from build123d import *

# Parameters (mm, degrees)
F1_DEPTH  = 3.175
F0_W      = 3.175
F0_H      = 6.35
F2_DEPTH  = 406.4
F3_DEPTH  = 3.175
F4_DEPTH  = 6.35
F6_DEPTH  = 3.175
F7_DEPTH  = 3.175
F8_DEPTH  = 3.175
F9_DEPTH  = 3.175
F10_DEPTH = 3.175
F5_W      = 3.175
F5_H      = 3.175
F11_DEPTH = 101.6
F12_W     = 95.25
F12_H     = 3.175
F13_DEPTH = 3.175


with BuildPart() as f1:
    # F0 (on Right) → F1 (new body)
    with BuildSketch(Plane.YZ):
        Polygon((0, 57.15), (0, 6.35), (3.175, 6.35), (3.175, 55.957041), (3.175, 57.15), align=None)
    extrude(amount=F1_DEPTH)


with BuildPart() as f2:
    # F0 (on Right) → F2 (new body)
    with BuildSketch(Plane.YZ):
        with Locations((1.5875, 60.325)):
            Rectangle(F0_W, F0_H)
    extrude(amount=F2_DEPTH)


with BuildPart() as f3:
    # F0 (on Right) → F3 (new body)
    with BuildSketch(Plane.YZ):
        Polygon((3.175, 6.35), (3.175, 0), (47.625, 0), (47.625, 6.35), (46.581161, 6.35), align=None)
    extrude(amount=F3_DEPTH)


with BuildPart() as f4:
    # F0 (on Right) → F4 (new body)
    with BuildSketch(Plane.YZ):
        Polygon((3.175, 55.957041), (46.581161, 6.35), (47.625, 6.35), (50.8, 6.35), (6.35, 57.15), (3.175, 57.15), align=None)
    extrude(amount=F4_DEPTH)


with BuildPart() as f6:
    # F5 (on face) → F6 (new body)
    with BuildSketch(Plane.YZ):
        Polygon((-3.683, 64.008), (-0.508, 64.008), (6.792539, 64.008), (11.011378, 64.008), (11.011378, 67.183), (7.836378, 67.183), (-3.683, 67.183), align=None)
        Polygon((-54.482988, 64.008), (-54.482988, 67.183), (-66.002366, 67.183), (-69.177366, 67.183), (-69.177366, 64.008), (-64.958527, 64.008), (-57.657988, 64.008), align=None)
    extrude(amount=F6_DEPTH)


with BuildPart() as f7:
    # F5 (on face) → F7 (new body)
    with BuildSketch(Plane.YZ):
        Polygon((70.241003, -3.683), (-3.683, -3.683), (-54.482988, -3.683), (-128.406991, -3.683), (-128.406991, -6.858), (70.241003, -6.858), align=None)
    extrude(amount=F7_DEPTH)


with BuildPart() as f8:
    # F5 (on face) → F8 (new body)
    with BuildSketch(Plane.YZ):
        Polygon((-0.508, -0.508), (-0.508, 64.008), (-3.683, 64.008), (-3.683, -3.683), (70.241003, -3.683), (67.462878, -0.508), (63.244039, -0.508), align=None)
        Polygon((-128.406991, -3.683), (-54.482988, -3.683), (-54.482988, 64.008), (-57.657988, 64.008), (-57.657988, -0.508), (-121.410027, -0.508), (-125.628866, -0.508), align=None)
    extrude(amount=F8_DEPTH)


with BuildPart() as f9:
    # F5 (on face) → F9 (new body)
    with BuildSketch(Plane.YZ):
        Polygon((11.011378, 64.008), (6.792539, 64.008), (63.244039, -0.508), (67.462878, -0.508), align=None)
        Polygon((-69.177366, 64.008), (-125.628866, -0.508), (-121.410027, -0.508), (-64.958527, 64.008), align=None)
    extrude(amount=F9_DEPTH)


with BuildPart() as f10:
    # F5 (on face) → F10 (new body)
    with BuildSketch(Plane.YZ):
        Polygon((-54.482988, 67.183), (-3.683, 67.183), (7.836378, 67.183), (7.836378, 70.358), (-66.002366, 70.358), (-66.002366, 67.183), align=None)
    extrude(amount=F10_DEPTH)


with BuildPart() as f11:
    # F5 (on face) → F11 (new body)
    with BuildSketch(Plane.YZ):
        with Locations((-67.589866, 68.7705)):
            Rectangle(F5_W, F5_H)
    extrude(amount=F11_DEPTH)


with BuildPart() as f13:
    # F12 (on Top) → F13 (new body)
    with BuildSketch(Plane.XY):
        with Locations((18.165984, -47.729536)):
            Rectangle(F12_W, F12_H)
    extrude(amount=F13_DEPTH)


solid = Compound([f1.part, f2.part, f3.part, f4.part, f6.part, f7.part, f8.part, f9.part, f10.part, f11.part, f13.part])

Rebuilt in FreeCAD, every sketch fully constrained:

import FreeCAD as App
import Part
import Sketcher
from FreeCAD import Vector
Q = App.Units.Quantity

doc = App.newDocument("Part")
body = doc.addObject("PartDesign::Body", "Body")

sketch1 = body.newObject("Sketcher::SketchObject", "Sketch")
sketch1.AttachmentSupport = (doc.getObject("YZ_Plane"), [""])
sketch1.MapMode = "FlatFace"
sketch1.addGeometry([
    Part.LineSegment(Vector(0, 57.1, 0), Vector(0, 6.3, 0)),
    Part.LineSegment(Vector(0, 6.3, 0), Vector(3.2, 6.3, 0)),
    Part.LineSegment(Vector(3.2, 6.3, 0), Vector(3.2, 57.1, 0)),
    Part.LineSegment(Vector(3.2, 57.1, 0), Vector(0, 57.1, 0)),
], False)
sketch1.addConstraint([
    Sketcher.Constraint("Coincident", 0, 2, 1, 1),
    Sketcher.Constraint("Coincident", 1, 2, 2, 1),
    Sketcher.Constraint("Coincident", 2, 2, 3, 1),
    Sketcher.Constraint("Coincident", 3, 2, 0, 1),
    Sketcher.Constraint("Vertical", 0),
    Sketcher.Constraint("Horizontal", 1),
    Sketcher.Constraint("Vertical", 2),
    Sketcher.Constraint("Horizontal", 3),
    Sketcher.Constraint("PointOnObject", 0, 2, -2),
    Sketcher.Constraint("DistanceY", 0, 2, 0, 1, Q("2 in")),
    Sketcher.Constraint("DistanceX", 1, 1, 1, 2, Q("0.125 in")),
    Sketcher.Constraint("DistanceY", -1, 1, 0, 2, Q("0.25 in")),
])
pad1 = body.newObject("PartDesign::Pad", "Pad")
pad1.Profile = sketch1
pad1.Length = Q("0.125 in")
body2 = doc.addObject("PartDesign::Body", "Body001")

sketch2 = body2.newObject("Sketcher::SketchObject", "Sketch001")
sketch2.AttachmentSupport = (doc.getObject("YZ_Plane001"), [""])
sketch2.MapMode = "FlatFace"
sketch2.addGeometry([
    Part.LineSegment(Vector(0, 63.5, 0), Vector(0, 57.1, 0)),
    Part.LineSegment(Vector(0, 57.1, 0), Vector(3.2, 57.1, 0)),
    Part.LineSegment(Vector(3.2, 57.1, 0), Vector(3.2, 63.5, 0)),
    Part.LineSegment(Vector(3.2, 63.5, 0), Vector(0, 63.5, 0)),
], False)
sketch2.addConstraint([
    Sketcher.Constraint("Coincident", 0, 2, 1, 1),
    Sketcher.Constraint("Coincident", 1, 2, 2, 1),
    Sketcher.Constraint("Coincident", 2, 2, 3, 1),
    Sketcher.Constraint("Coincident", 3, 2, 0, 1),
    Sketcher.Constraint("Vertical", 0),
    Sketcher.Constraint("Horizontal", 1),
    Sketcher.Constraint("Vertical", 2),
    Sketcher.Constraint("Horizontal", 3),
    Sketcher.Constraint("PointOnObject", 0, 2, -2),
    Sketcher.Constraint("DistanceY", 0, 2, 0, 1, Q("0.25 in")),
    Sketcher.Constraint("DistanceY", -1, 1, 2, 2, Q("2.5 in")),
    Sketcher.Constraint("DistanceX", 1, 1, 1, 2, Q("0.125 in")),
])
pad2 = body2.newObject("PartDesign::Pad", "Pad001")
pad2.Profile = sketch2
pad2.Length = Q("16 in")
body3 = doc.addObject("PartDesign::Body", "Body002")

sketch3 = body3.newObject("Sketcher::SketchObject", "Sketch002")
sketch3.AttachmentSupport = (doc.getObject("YZ_Plane002"), [""])
sketch3.MapMode = "FlatFace"
sketch3.addGeometry([
    Part.LineSegment(Vector(3, 6, 0), Vector(3, 0, 0)),
    Part.LineSegment(Vector(3, 0, 0), Vector(48, 0, 0)),
    Part.LineSegment(Vector(48, 0, 0), Vector(48, 6, 0)),
    Part.LineSegment(Vector(48, 6, 0), Vector(3, 6, 0)),
], False)
sketch3.addConstraint([
    Sketcher.Constraint("Coincident", 0, 2, 1, 1),
    Sketcher.Constraint("Coincident", 1, 2, 2, 1),
    Sketcher.Constraint("Coincident", 2, 2, 3, 1),
    Sketcher.Constraint("Coincident", 3, 2, 0, 1),
    Sketcher.Constraint("Vertical", 0),
    Sketcher.Constraint("Horizontal", 1),
    Sketcher.Constraint("Vertical", 2),
    Sketcher.Constraint("Horizontal", 3),
    Sketcher.Constraint("PointOnObject", 0, 2, -1),
    Sketcher.Constraint("DistanceX", 1, 1, 1, 2, Q("1.75 in")),
    Sketcher.Constraint("DistanceY", 0, 2, 0, 1, Q("0.25 in")),
    Sketcher.Constraint("DistanceX", -1, 1, 0, 2, Q("0.125 in")),
])
pad3 = body3.newObject("PartDesign::Pad", "Pad002")
pad3.Profile = sketch3
pad3.Length = Q("0.125 in")
body4 = doc.addObject("PartDesign::Body", "Body003")

sketch4 = body4.newObject("Sketcher::SketchObject", "Sketch003")
sketch4.AttachmentSupport = (doc.getObject("YZ_Plane003"), [""])
sketch4.MapMode = "FlatFace"
sketch4.addGeometry([
    Part.LineSegment(Vector(3.2, 56, 0), Vector(46.6, 6.3, 0)),
    Part.LineSegment(Vector(46.6, 6.3, 0), Vector(50.8, 6.3, 0)),
    Part.LineSegment(Vector(50.8, 6.3, 0), Vector(6.3, 57.1, 0)),
    Part.LineSegment(Vector(6.3, 57.1, 0), Vector(3.2, 57.1, 0)),
    Part.LineSegment(Vector(3.2, 57.1, 0), Vector(3.2, 56, 0)),
], False)
sketch4.addConstraint([
    Sketcher.Constraint("Coincident", 0, 2, 1, 1),
    Sketcher.Constraint("Coincident", 1, 2, 2, 1),
    Sketcher.Constraint("Coincident", 2, 2, 3, 1),
    Sketcher.Constraint("Coincident", 3, 2, 4, 1),
    Sketcher.Constraint("Coincident", 4, 2, 0, 1),
    Sketcher.Constraint("Horizontal", 1),
    Sketcher.Constraint("Horizontal", 3),
    Sketcher.Constraint("Vertical", 4),
    Sketcher.Constraint("Parallel", 0, 2),
    Sketcher.Constraint("DistanceX", -1, 1, 1, 2, Q("2 in")),
    Sketcher.Constraint("DistanceY", 0, 2, 2, 2, Q("2 in")),
    Sketcher.Constraint("DistanceX", 3, 2, 3, 1, Q("0.125 in")),
    Sketcher.Constraint("DistanceY", -1, 1, 0, 2, Q("0.25 in")),
    Sketcher.Constraint("DistanceX", -1, 1, 2, 2, Q("0.25 in")),
    Sketcher.Constraint("DistanceX", 1, 1, 1, 2, Q("4.218839 mm")),
])
pad4 = body4.newObject("PartDesign::Pad", "Pad003")
pad4.Profile = sketch4
pad4.Length = Q("0.25 in")
body5 = doc.addObject("PartDesign::Body", "Body004")
body5.AllowCompound = True

sketch5 = body5.newObject("Sketcher::SketchObject", "Sketch004")
sketch5.AttachmentSupport = (doc.getObject("YZ_Plane004"), [""])
sketch5.MapMode = "FlatFace"
sketch5.addGeometry([
    Part.LineSegment(Vector(-3.7, 64, 0), Vector(11, 64, 0)),
    Part.LineSegment(Vector(11, 64, 0), Vector(11, 67.2, 0)),
    Part.LineSegment(Vector(11, 67.2, 0), Vector(-3.7, 67.2, 0)),
    Part.LineSegment(Vector(-3.7, 67.2, 0), Vector(-3.7, 64, 0)),
    Part.LineSegment(Vector(-54.5, 64, 0), Vector(-54.5, 67.2, 0)),
    Part.LineSegment(Vector(-54.5, 67.2, 0), Vector(-69.2, 67.2, 0)),
    Part.LineSegment(Vector(-69.2, 67.2, 0), Vector(-69.2, 64, 0)),
    Part.LineSegment(Vector(-69.2, 64, 0), Vector(-54.5, 64, 0)),
], False)
sketch5.addConstraint([
    Sketcher.Constraint("Coincident", 0, 2, 1, 1),
    Sketcher.Constraint("Coincident", 1, 2, 2, 1),
    Sketcher.Constraint("Coincident", 2, 2, 3, 1),
    Sketcher.Constraint("Coincident", 3, 2, 0, 1),
    Sketcher.Constraint("Coincident", 4, 2, 5, 1),
    Sketcher.Constraint("Coincident", 5, 2, 6, 1),
    Sketcher.Constraint("Coincident", 6, 2, 7, 1),
    Sketcher.Constraint("Coincident", 7, 2, 4, 1),
    Sketcher.Constraint("Horizontal", 0),
    Sketcher.Constraint("Vertical", 1),
    Sketcher.Constraint("Horizontal", 2),
    Sketcher.Constraint("Vertical", 3),
    Sketcher.Constraint("Vertical", 4),
    Sketcher.Constraint("Horizontal", 5),
    Sketcher.Constraint("Vertical", 6),
    Sketcher.Constraint("Horizontal", 7),
    Sketcher.Constraint("Horizontal", 2, 2, 4, 2),
    Sketcher.Constraint("Horizontal", 3, 2, 6, 2),
    Sketcher.Constraint("Equal", 2, 5),
    Sketcher.Constraint("DistanceY", 1, 1, 1, 2, Q("0.125 in")),
    Sketcher.Constraint("DistanceY", -1, 1, 0, 2, Q("2.52 in")),
    Sketcher.Constraint("DistanceX", 2, 2, -1, 1, Q("0.145 in")),
    Sketcher.Constraint("DistanceX", 5, 2, 5, 1, Q("14.694378 mm")),
    Sketcher.Constraint("DistanceX", 4, 2, -1, 1, Q("54.482988 mm")),
])
pad5 = body5.newObject("PartDesign::Pad", "Pad004")
pad5.Profile = sketch5
pad5.Length = Q("0.125 in")
body6 = doc.addObject("PartDesign::Body", "Body005")

sketch6 = body6.newObject("Sketcher::SketchObject", "Sketch005")
sketch6.AttachmentSupport = (doc.getObject("YZ_Plane005"), [""])
sketch6.MapMode = "FlatFace"
sketch6.addGeometry([
    Part.LineSegment(Vector(70.2, -3.7, 0), Vector(-128.4, -3.7, 0)),
    Part.LineSegment(Vector(-128.4, -3.7, 0), Vector(-128.4, -6.9, 0)),
    Part.LineSegment(Vector(-128.4, -6.9, 0), Vector(70.2, -6.9, 0)),
    Part.LineSegment(Vector(70.2, -6.9, 0), Vector(70.2, -3.7, 0)),
], False)
sketch6.addConstraint([
    Sketcher.Constraint("Coincident", 0, 2, 1, 1),
    Sketcher.Constraint("Coincident", 1, 2, 2, 1),
    Sketcher.Constraint("Coincident", 2, 2, 3, 1),
    Sketcher.Constraint("Coincident", 3, 2, 0, 1),
    Sketcher.Constraint("Horizontal", 0),
    Sketcher.Constraint("Vertical", 1),
    Sketcher.Constraint("Horizontal", 2),
    Sketcher.Constraint("Vertical", 3),
    Sketcher.Constraint("DistanceY", 1, 2, 1, 1, Q("0.125 in")),
    Sketcher.Constraint("DistanceY", 1, 2, -1, 1, Q("0.27 in")),
    Sketcher.Constraint("DistanceX", 0, 2, 0, 1, Q("198.647994 mm")),
    Sketcher.Constraint("DistanceX", 0, 2, -1, 1, Q("128.406991 mm")),
])
pad6 = body6.newObject("PartDesign::Pad", "Pad005")
pad6.Profile = sketch6
pad6.Length = Q("0.125 in")
body7 = doc.addObject("PartDesign::Body", "Body006")
body7.AllowCompound = True

sketch7 = body7.newObject("Sketcher::SketchObject", "Sketch006")
sketch7.AttachmentSupport = (doc.getObject("YZ_Plane006"), [""])
sketch7.MapMode = "FlatFace"
sketch7.addGeometry([
    Part.LineSegment(Vector(-0.5, -0.5, 0), Vector(-0.5, 64, 0)),
    Part.LineSegment(Vector(-0.5, 64, 0), Vector(-3.7, 64, 0)),
    Part.LineSegment(Vector(-3.7, 64, 0), Vector(-3.7, -3.7, 0)),
    Part.LineSegment(Vector(-3.7, -3.7, 0), Vector(70.2, -3.7, 0)),
    Part.LineSegment(Vector(70.2, -3.7, 0), Vector(67.5, -0.5, 0)),
    Part.LineSegment(Vector(67.5, -0.5, 0), Vector(-0.5, -0.5, 0)),
    Part.LineSegment(Vector(-128.4, -3.7, 0), Vector(-54.5, -3.7, 0)),
    Part.LineSegment(Vector(-54.5, -3.7, 0), Vector(-54.5, 64, 0)),
    Part.LineSegment(Vector(-54.5, 64, 0), Vector(-57.7, 64, 0)),
    Part.LineSegment(Vector(-57.7, 64, 0), Vector(-57.7, -0.5, 0)),
    Part.LineSegment(Vector(-57.7, -0.5, 0), Vector(-125.6, -0.5, 0)),
    Part.LineSegment(Vector(-125.6, -0.5, 0), Vector(-128.4, -3.7, 0)),
], False)
sketch7.addConstraint([
    Sketcher.Constraint("Coincident", 0, 2, 1, 1),
    Sketcher.Constraint("Coincident", 1, 2, 2, 1),
    Sketcher.Constraint("Coincident", 2, 2, 3, 1),
    Sketcher.Constraint("Coincident", 3, 2, 4, 1),
    Sketcher.Constraint("Coincident", 4, 2, 5, 1),
    Sketcher.Constraint("Coincident", 5, 2, 0, 1),
    Sketcher.Constraint("Coincident", 6, 2, 7, 1),
    Sketcher.Constraint("Coincident", 7, 2, 8, 1),
    Sketcher.Constraint("Coincident", 8, 2, 9, 1),
    Sketcher.Constraint("Coincident", 9, 2, 10, 1),
    Sketcher.Constraint("Coincident", 10, 2, 11, 1),
    Sketcher.Constraint("Coincident", 11, 2, 6, 1),
    Sketcher.Constraint("Vertical", 0),
    Sketcher.Constraint("Horizontal", 1),
    Sketcher.Constraint("Vertical", 2),
    Sketcher.Constraint("Horizontal", 3),
    Sketcher.Constraint("Horizontal", 5),
    Sketcher.Constraint("Horizontal", 6),
    Sketcher.Constraint("Vertical", 7),
    Sketcher.Constraint("Horizontal", 8),
    Sketcher.Constraint("Vertical", 9),
    Sketcher.Constraint("Horizontal", 10),
    Sketcher.Constraint("Horizontal", 3, 2, 6, 2),
    Sketcher.Constraint("Horizontal", 1, 2, 7, 2),
    Sketcher.Constraint("Horizontal", 5, 2, 9, 2),
    Sketcher.Constraint("Equal", 3, 6),
    Sketcher.Constraint("Equal", 1, 8),
    Sketcher.Constraint("Equal", 5, 10),
    Sketcher.Constraint("DistanceY", 0, 1, 0, 2, Q("2.54 in")),
    Sketcher.Constraint("DistanceX", 1, 2, 1, 1, Q("0.125 in")),
    Sketcher.Constraint("DistanceY", 2, 2, 2, 1, Q("2.665 in")),
    Sketcher.Constraint("DistanceX", 0, 2, -1, 1, Q("0.02 in")),
    Sketcher.Constraint("DistanceY", -1, 1, 0, 2, Q("2.52 in")),
    Sketcher.Constraint("DistanceX", 4, 2, 3, 2, Q("0.109375 in")),
    Sketcher.Constraint("DistanceX", 5, 2, 5, 1, Q("67.970878 mm")),
    Sketcher.Constraint("DistanceX", 8, 2, -1, 1, Q("57.657988 mm")),
])
pad7 = body7.newObject("PartDesign::Pad", "Pad006")
pad7.Profile = sketch7
pad7.Length = Q("0.125 in")
body8 = doc.addObject("PartDesign::Body", "Body007")
body8.AllowCompound = True

sketch8 = body8.newObject("Sketcher::SketchObject", "Sketch007")
sketch8.AttachmentSupport = (doc.getObject("YZ_Plane007"), [""])
sketch8.MapMode = "FlatFace"
sketch8.addGeometry([
    Part.LineSegment(Vector(11, 64, 0), Vector(6.8, 64, 0)),
    Part.LineSegment(Vector(6.8, 64, 0), Vector(63.2, -0.5, 0)),
    Part.LineSegment(Vector(63.2, -0.5, 0), Vector(67.5, -0.5, 0)),
    Part.LineSegment(Vector(67.5, -0.5, 0), Vector(11, 64, 0)),
    Part.LineSegment(Vector(-69.2, 64, 0), Vector(-125.6, -0.5, 0)),
    Part.LineSegment(Vector(-125.6, -0.5, 0), Vector(-121.4, -0.5, 0)),
    Part.LineSegment(Vector(-121.4, -0.5, 0), Vector(-65, 64, 0)),
    Part.LineSegment(Vector(-65, 64, 0), Vector(-69.2, 64, 0)),
], False)
sketch8.addConstraint([
    Sketcher.Constraint("Coincident", 0, 2, 1, 1),
    Sketcher.Constraint("Coincident", 1, 2, 2, 1),
    Sketcher.Constraint("Coincident", 2, 2, 3, 1),
    Sketcher.Constraint("Coincident", 3, 2, 0, 1),
    Sketcher.Constraint("Coincident", 4, 2, 5, 1),
    Sketcher.Constraint("Coincident", 5, 2, 6, 1),
    Sketcher.Constraint("Coincident", 6, 2, 7, 1),
    Sketcher.Constraint("Coincident", 7, 2, 4, 1),
    Sketcher.Constraint("Horizontal", 0),
    Sketcher.Constraint("Horizontal", 2),
    Sketcher.Constraint("Horizontal", 5),
    Sketcher.Constraint("Horizontal", 7),
    Sketcher.Constraint("Parallel", 1, 3),
    Sketcher.Constraint("Parallel", 4, 6),
    Sketcher.Constraint("Horizontal", 2, 2, 4, 2),
    Sketcher.Constraint("Horizontal", 3, 2, 6, 2),
    Sketcher.Constraint("Equal", 2, 5),
    Sketcher.Constraint("Equal", 3, 4),
    Sketcher.Constraint("DistanceY", -1, 1, 0, 2, Q("2.52 in")),
    Sketcher.Constraint("DistanceY", 1, 2, -1, 1, Q("0.02 in")),
    Sketcher.Constraint("DistanceX", 0, 2, 1, 2, Q("2.2225 in")),
    Sketcher.Constraint("DistanceX", 0, 2, 0, 1, Q("4.218839 mm")),
    Sketcher.Constraint("DistanceX", -1, 1, 0, 2, Q("6.792539 mm")),
    Sketcher.Constraint("DistanceX", 4, 2, -1, 1, Q("125.628866 mm")),
])
pad8 = body8.newObject("PartDesign::Pad", "Pad007")
pad8.Profile = sketch8
pad8.Length = Q("0.125 in")
body9 = doc.addObject("PartDesign::Body", "Body008")

sketch9 = body9.newObject("Sketcher::SketchObject", "Sketch008")
sketch9.AttachmentSupport = (doc.getObject("YZ_Plane008"), [""])
sketch9.MapMode = "FlatFace"
sketch9.addGeometry([
    Part.LineSegment(Vector(7.8, 67.2, 0), Vector(7.8, 70.4, 0)),
    Part.LineSegment(Vector(7.8, 70.4, 0), Vector(-66, 70.4, 0)),
    Part.LineSegment(Vector(-66, 70.4, 0), Vector(-66, 67.2, 0)),
    Part.LineSegment(Vector(-66, 67.2, 0), Vector(7.8, 67.2, 0)),
], False)
sketch9.addConstraint([
    Sketcher.Constraint("Coincident", 0, 2, 1, 1),
    Sketcher.Constraint("Coincident", 1, 2, 2, 1),
    Sketcher.Constraint("Coincident", 2, 2, 3, 1),
    Sketcher.Constraint("Coincident", 3, 2, 0, 1),
    Sketcher.Constraint("Vertical", 0),
    Sketcher.Constraint("Horizontal", 1),
    Sketcher.Constraint("Vertical", 2),
    Sketcher.Constraint("Horizontal", 3),
    Sketcher.Constraint("DistanceY", 0, 1, 0, 2, Q("0.125 in")),
    Sketcher.Constraint("DistanceY", -1, 1, 0, 2, Q("2.77 in")),
    Sketcher.Constraint("DistanceX", 1, 2, 1, 1, Q("73.838744 mm")),
    Sketcher.Constraint("DistanceX", -1, 1, 0, 2, Q("7.836378 mm")),
])
pad9 = body9.newObject("PartDesign::Pad", "Pad008")
pad9.Profile = sketch9
pad9.Length = Q("0.125 in")
body10 = doc.addObject("PartDesign::Body", "Body009")

sketch10 = body10.newObject("Sketcher::SketchObject", "Sketch009")
sketch10.AttachmentSupport = (doc.getObject("YZ_Plane009"), [""])
sketch10.MapMode = "FlatFace"
sketch10.addGeometry([
    Part.LineSegment(Vector(-69.2, 70.4, 0), Vector(-69.2, 67.2, 0)),
    Part.LineSegment(Vector(-69.2, 67.2, 0), Vector(-66, 67.2, 0)),
    Part.LineSegment(Vector(-66, 67.2, 0), Vector(-66, 70.4, 0)),
    Part.LineSegment(Vector(-66, 70.4, 0), Vector(-69.2, 70.4, 0)),
], False)
sketch10.addConstraint([
    Sketcher.Constraint("Coincident", 0, 2, 1, 1),
    Sketcher.Constraint("Coincident", 1, 2, 2, 1),
    Sketcher.Constraint("Coincident", 2, 2, 3, 1),
    Sketcher.Constraint("Coincident", 3, 2, 0, 1),
    Sketcher.Constraint("Vertical", 0),
    Sketcher.Constraint("Horizontal", 1),
    Sketcher.Constraint("Vertical", 2),
    Sketcher.Constraint("Horizontal", 3),
    Sketcher.Constraint("Equal", 3, 0),
    Sketcher.Constraint("DistanceX", 1, 1, 1, 2, Q("0.125 in")),
    Sketcher.Constraint("DistanceY", -1, 1, 2, 2, Q("2.77 in")),
    Sketcher.Constraint("DistanceX", 0, 2, -1, 1, Q("69.177366 mm")),
])
pad10 = body10.newObject("PartDesign::Pad", "Pad009")
pad10.Profile = sketch10
pad10.Length = Q("4 in")
body11 = doc.addObject("PartDesign::Body", "Body010")

sketch11 = body11.newObject("Sketcher::SketchObject", "Sketch010")
sketch11.AttachmentSupport = (doc.getObject("XY_Plane010"), [""])
sketch11.MapMode = "FlatFace"
sketch11.addGeometry([
    Part.LineSegment(Vector(-29.5, -46.1, 0), Vector(-29.5, -49.3, 0)),
    Part.LineSegment(Vector(-29.5, -49.3, 0), Vector(65.8, -49.3, 0)),
    Part.LineSegment(Vector(65.8, -49.3, 0), Vector(65.8, -46.1, 0)),
    Part.LineSegment(Vector(65.8, -46.1, 0), Vector(-29.5, -46.1, 0)),
], False)
sketch11.addConstraint([
    Sketcher.Constraint("Coincident", 0, 2, 1, 1),
    Sketcher.Constraint("Coincident", 1, 2, 2, 1),
    Sketcher.Constraint("Coincident", 2, 2, 3, 1),
    Sketcher.Constraint("Coincident", 3, 2, 0, 1),
    Sketcher.Constraint("Vertical", 0),
    Sketcher.Constraint("Horizontal", 1),
    Sketcher.Constraint("Vertical", 2),
    Sketcher.Constraint("Horizontal", 3),
    Sketcher.Constraint("DistanceX", 1, 1, 1, 2, Q("3.75 in")),
    Sketcher.Constraint("DistanceY", 0, 2, 0, 1, Q("0.125 in")),
    Sketcher.Constraint("DistanceX", 0, 2, -1, 1, Q("29.459016 mm")),
    Sketcher.Constraint("DistanceY", 0, 2, -1, 1, Q("49.317036 mm")),
])
pad11 = body11.newObject("PartDesign::Pad", "Pad010")
pad11.Profile = sketch11
pad11.Length = Q("0.125 in")

doc.recompute()
